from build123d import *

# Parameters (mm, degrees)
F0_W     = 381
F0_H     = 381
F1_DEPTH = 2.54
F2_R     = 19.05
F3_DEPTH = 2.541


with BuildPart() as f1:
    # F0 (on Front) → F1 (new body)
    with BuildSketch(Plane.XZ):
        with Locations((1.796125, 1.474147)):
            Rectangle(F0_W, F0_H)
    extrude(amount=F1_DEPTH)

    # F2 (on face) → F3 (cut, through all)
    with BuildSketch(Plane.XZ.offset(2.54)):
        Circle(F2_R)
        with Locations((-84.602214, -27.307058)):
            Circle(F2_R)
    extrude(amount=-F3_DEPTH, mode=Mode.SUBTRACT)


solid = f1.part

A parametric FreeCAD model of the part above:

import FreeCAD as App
import Part
import Sketcher

V = App.Vector
Q = App.Units.Quantity

doc = App.newDocument("Part")
params = doc.addObject("Spreadsheet::Sheet", "Params")
for row, (alias, value) in enumerate([
    ("sketch1_width", "15 in"),
    ("pad1_length", "0.1 in"),
    ("sketch2_diameter", "1.5 in"),
], start=1):
    params.set(f"A{row}", alias)
    params.set(f"B{row}", "=" + value)
    params.setAlias(f"B{row}", alias)

body = doc.addObject("PartDesign::Body", "Body")

sketch1 = body.newObject("Sketcher::SketchObject", "Sketch")
sketch1.AttachmentSupport = (doc.getObject("XZ_Plane"), [""])
sketch1.MapMode = "FlatFace"
sketch1.addGeometry(Part.LineSegment(V(-189, 192, 0), V(-189, -189, 0)), False)
sketch1.addGeometry(Part.LineSegment(V(-189, -189, 0), V(192, -189, 0)), False)
sketch1.addGeometry(Part.LineSegment(V(192, -189, 0), V(192, 192, 0)), False)
sketch1.addGeometry(Part.LineSegment(V(192, 192, 0), V(-189, 192, 0)), False)
sketch1.addConstraint(Sketcher.Constraint("Coincident", 0, 2, 1, 1))
sketch1.addConstraint(Sketcher.Constraint("Coincident", 1, 2, 2, 1))
sketch1.addConstraint(Sketcher.Constraint("Coincident", 2, 2, 3, 1))
sketch1.addConstraint(Sketcher.Constraint("Coincident", 3, 2, 0, 1))
sketch1.addConstraint(Sketcher.Constraint("Vertical", 0))
sketch1.addConstraint(Sketcher.Constraint("Horizontal", 1))
sketch1.addConstraint(Sketcher.Constraint("Vertical", 2))
sketch1.addConstraint(Sketcher.Constraint("Horizontal", 3))
sketch1.addConstraint(Sketcher.Constraint("Equal", 3, 0))
sketch1.addConstraint(Sketcher.Constraint("DistanceX", 1, 1, 1, 2, Q("15 in")))
sketch1.addConstraint(Sketcher.Constraint("DistanceX", 0, 2, -1, 1, Q("188.703875 mm")))
sketch1.addConstraint(Sketcher.Constraint("DistanceY", 0, 2, -1, 1, Q("189.025853 mm")))
sketch1.setExpression("Constraints[9]", "Params.sketch1_width")
pad1 = body.newObject("PartDesign::Pad", "Pad")
pad1.Profile = sketch1
pad1.setExpression("Length", "Params.pad1_length")

sketch2 = body.newObject("Sketcher::SketchObject", "Sketch001")
sketch2.AttachmentSupport = (doc.getObject("XZ_Plane"), [""])
sketch2.MapMode = "FlatFace"
sketch2.AttachmentOffset = App.Placement(V(0, 0, 0.1 * 25.4), App.Rotation())
sketch2.addGeometry(Part.Circle(V(0, 0, 0), V(0, 0, 1), 19), False)
sketch2.addGeometry(Part.Circle(V(-85, -27, 0), V(0, 0, 1), 19), False)
sketch2.addConstraint(Sketcher.Constraint("Coincident", 0, 3, -1, 1))
sketch2.addConstraint(Sketcher.Constraint("Equal", 0, 1))
sketch2.addConstraint(Sketcher.Constraint("Diameter", 0, Q("1.5 in")))
sketch2.addConstraint(Sketcher.Constraint("DistanceY", 1, 3, -1, 1, Q("27.307058 mm")))
sketch2.addConstraint(Sketcher.Constraint("DistanceX", 1, 3, -1, 1, Q("84.602214 mm")))
sketch2.setExpression("Constraints[2]", "Params.sketch2_diameter")
pocket1 = body.newObject("PartDesign::Pocket", "Pocket")
pocket1.Profile = sketch2
pocket1.Type = "ThroughAll"

doc.recompute()
